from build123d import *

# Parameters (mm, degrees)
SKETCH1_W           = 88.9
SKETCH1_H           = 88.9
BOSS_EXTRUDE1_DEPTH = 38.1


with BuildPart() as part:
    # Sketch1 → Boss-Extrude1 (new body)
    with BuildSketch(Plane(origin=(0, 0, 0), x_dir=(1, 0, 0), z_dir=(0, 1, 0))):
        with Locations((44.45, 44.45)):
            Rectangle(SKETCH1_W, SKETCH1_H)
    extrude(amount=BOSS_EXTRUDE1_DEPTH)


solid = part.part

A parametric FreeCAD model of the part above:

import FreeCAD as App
import Part
import Sketcher
Q = App.Units.Quantity


def add_polygon(sketch, points):
    """Adds a closed chain of lines whose ends are joined by coincident constraints."""
    first, n = sketch.GeometryCount, len(points)
    for a, b in zip(points, points[1:] + points[:1]):
        sketch.addGeometry(Part.LineSegment(App.Vector(*a, 0), App.Vector(*b, 0)), False)
    for i in range(n):
        sketch.addConstraint(Sketcher.Constraint("Coincident", first + i, 2, first + (i + 1) % n, 1))

doc = App.newDocument("Part")
params = doc.addObject("Spreadsheet::Sheet", "Params")
for row, (alias, value) in enumerate([
    ("sketch1_width", "3.5 in"),
    ("pad1_length", "1.5 in"),
], start=1):
    params.set(f"A{row}", alias)
    params.set(f"B{row}", "=" + value)
    params.setAlias(f"B{row}", alias)

body = doc.addObject("PartDesign::Body", "Body")

sketch1 = body.newObject("Sketcher::SketchObject", "Sketch")
sketch1.AttachmentSupport = (doc.getObject("XZ_Plane"), [""])
sketch1.MapMode = "FlatFace"
add_polygon(sketch1, [(0, -89), (0, 0), (89, 0), (89, -89)])
sketch1.addConstraint([
    Sketcher.Constraint("Vertical", 0),
    Sketcher.Constraint("Horizontal", 1),
    Sketcher.Constraint("Vertical", 2),
    Sketcher.Constraint("Horizontal", 3),
    Sketcher.Constraint("Coincident", 0, 2, -1, 1),
    Sketcher.Constraint("Equal", 3, 0),
    Sketcher.Constraint("DistanceX", 1, 1, 1, 2, Q("3.5 in")),
])
sketch1.setExpression("Constraints[10]", "Params.sketch1_width")
pad1 = body.newObject("PartDesign::Pad", "Pad")
pad1.Profile = sketch1
pad1.setExpression("Length", "Params.pad1_length")
pad1.Reversed = True

doc.recompute()
